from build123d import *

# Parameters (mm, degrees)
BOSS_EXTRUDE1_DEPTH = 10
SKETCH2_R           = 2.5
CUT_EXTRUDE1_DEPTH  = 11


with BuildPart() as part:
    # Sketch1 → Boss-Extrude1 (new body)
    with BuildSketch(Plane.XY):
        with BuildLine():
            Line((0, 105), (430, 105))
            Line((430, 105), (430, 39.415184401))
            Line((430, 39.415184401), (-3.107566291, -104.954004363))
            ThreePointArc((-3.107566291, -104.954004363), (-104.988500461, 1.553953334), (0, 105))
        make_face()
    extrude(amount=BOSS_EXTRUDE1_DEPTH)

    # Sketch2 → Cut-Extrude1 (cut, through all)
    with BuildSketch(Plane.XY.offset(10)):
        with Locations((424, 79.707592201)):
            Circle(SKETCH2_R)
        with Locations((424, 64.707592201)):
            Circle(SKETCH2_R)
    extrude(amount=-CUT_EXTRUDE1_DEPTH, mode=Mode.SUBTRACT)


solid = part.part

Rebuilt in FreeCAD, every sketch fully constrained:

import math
import FreeCAD as App
import Part
import Sketcher

V = App.Vector

doc = App.newDocument("Part")
body = doc.addObject("PartDesign::Body", "Body")

# Sketch on XY plane
sketch1 = body.newObject("Sketcher::SketchObject", "Sketch")
sketch1.AttachmentSupport = (doc.getObject("XY_Plane"), [""])
sketch1.MapMode = "FlatFace"
sketch1.addGeometry([
    Part.LineSegment(V(430, 105, 0), V(0, 105, 0)),
    Part.ArcOfCircle(Part.Circle(V(0, 0, 0), V(0, 0, 1), 105), math.radians(90), math.radians(268.304034)),
    Part.LineSegment(V(-3.107566, -104.954004, 0), V(430, 39.415184, 0)),
    Part.LineSegment(V(430, 39.415184, 0), V(430, 105, 0)),
], False)
sketch1.addConstraint([
    Sketcher.Constraint("Tangent", 0, 2, 1, 1),
    Sketcher.Constraint("Coincident", 1, 2, 2, 1),
    Sketcher.Constraint("Coincident", 2, 2, 3, 1),
    Sketcher.Constraint("Coincident", 3, 2, 0, 1),
    Sketcher.Constraint("Horizontal", 0),
    Sketcher.Constraint("Vertical", 3),
    Sketcher.Constraint("Coincident", 1, 3, -1, 1),
    Sketcher.Constraint("Radius", 1, 105.0),
    Sketcher.Constraint("DistanceX", 0, 2, 0, 1, 430.0),
    Sketcher.Constraint("Distance", 2, 456.53546),
    Sketcher.Constraint("DistanceY", 3, 1, 3, 2, 65.584816),
])
pad1 = body.newObject("PartDesign::Pad", "Pad")
pad1.Profile = sketch1
pad1.Length = 10

# Sketch on XY plane
sketch2 = body.newObject("Sketcher::SketchObject", "Sketch001")
sketch2.AttachmentSupport = (doc.getObject("XY_Plane"), [""])
sketch2.MapMode = "FlatFace"
sketch2.AttachmentOffset = App.Placement(V(0, 0, 10), App.Rotation())
sketch2.addGeometry([
    Part.Circle(V(424, 79.707592, 0), V(0, 0, 1), 2.5),
    Part.Circle(V(424, 64.707592, 0), V(0, 0, 1), 2.5),
], False)
sketch2.addConstraint([
    Sketcher.Constraint("Equal", 0, 1),
    Sketcher.Constraint("Vertical", 0, 3, 1, 3),
    Sketcher.Constraint("Diameter", 0, 5.0),
    Sketcher.Constraint("DistanceX", -1, 1, 0, 3, 424.0),
    Sketcher.Constraint("DistanceY", 1, 3, 0, 3, 15.0),
    Sketcher.Constraint("DistanceY", -1, 1, 0, 3, 79.707592),
])
pocket1 = body.newObject("PartDesign::Pocket", "Pocket")
pocket1.Profile = sketch2
pocket1.Type = "ThroughAll"

doc.recompute()
